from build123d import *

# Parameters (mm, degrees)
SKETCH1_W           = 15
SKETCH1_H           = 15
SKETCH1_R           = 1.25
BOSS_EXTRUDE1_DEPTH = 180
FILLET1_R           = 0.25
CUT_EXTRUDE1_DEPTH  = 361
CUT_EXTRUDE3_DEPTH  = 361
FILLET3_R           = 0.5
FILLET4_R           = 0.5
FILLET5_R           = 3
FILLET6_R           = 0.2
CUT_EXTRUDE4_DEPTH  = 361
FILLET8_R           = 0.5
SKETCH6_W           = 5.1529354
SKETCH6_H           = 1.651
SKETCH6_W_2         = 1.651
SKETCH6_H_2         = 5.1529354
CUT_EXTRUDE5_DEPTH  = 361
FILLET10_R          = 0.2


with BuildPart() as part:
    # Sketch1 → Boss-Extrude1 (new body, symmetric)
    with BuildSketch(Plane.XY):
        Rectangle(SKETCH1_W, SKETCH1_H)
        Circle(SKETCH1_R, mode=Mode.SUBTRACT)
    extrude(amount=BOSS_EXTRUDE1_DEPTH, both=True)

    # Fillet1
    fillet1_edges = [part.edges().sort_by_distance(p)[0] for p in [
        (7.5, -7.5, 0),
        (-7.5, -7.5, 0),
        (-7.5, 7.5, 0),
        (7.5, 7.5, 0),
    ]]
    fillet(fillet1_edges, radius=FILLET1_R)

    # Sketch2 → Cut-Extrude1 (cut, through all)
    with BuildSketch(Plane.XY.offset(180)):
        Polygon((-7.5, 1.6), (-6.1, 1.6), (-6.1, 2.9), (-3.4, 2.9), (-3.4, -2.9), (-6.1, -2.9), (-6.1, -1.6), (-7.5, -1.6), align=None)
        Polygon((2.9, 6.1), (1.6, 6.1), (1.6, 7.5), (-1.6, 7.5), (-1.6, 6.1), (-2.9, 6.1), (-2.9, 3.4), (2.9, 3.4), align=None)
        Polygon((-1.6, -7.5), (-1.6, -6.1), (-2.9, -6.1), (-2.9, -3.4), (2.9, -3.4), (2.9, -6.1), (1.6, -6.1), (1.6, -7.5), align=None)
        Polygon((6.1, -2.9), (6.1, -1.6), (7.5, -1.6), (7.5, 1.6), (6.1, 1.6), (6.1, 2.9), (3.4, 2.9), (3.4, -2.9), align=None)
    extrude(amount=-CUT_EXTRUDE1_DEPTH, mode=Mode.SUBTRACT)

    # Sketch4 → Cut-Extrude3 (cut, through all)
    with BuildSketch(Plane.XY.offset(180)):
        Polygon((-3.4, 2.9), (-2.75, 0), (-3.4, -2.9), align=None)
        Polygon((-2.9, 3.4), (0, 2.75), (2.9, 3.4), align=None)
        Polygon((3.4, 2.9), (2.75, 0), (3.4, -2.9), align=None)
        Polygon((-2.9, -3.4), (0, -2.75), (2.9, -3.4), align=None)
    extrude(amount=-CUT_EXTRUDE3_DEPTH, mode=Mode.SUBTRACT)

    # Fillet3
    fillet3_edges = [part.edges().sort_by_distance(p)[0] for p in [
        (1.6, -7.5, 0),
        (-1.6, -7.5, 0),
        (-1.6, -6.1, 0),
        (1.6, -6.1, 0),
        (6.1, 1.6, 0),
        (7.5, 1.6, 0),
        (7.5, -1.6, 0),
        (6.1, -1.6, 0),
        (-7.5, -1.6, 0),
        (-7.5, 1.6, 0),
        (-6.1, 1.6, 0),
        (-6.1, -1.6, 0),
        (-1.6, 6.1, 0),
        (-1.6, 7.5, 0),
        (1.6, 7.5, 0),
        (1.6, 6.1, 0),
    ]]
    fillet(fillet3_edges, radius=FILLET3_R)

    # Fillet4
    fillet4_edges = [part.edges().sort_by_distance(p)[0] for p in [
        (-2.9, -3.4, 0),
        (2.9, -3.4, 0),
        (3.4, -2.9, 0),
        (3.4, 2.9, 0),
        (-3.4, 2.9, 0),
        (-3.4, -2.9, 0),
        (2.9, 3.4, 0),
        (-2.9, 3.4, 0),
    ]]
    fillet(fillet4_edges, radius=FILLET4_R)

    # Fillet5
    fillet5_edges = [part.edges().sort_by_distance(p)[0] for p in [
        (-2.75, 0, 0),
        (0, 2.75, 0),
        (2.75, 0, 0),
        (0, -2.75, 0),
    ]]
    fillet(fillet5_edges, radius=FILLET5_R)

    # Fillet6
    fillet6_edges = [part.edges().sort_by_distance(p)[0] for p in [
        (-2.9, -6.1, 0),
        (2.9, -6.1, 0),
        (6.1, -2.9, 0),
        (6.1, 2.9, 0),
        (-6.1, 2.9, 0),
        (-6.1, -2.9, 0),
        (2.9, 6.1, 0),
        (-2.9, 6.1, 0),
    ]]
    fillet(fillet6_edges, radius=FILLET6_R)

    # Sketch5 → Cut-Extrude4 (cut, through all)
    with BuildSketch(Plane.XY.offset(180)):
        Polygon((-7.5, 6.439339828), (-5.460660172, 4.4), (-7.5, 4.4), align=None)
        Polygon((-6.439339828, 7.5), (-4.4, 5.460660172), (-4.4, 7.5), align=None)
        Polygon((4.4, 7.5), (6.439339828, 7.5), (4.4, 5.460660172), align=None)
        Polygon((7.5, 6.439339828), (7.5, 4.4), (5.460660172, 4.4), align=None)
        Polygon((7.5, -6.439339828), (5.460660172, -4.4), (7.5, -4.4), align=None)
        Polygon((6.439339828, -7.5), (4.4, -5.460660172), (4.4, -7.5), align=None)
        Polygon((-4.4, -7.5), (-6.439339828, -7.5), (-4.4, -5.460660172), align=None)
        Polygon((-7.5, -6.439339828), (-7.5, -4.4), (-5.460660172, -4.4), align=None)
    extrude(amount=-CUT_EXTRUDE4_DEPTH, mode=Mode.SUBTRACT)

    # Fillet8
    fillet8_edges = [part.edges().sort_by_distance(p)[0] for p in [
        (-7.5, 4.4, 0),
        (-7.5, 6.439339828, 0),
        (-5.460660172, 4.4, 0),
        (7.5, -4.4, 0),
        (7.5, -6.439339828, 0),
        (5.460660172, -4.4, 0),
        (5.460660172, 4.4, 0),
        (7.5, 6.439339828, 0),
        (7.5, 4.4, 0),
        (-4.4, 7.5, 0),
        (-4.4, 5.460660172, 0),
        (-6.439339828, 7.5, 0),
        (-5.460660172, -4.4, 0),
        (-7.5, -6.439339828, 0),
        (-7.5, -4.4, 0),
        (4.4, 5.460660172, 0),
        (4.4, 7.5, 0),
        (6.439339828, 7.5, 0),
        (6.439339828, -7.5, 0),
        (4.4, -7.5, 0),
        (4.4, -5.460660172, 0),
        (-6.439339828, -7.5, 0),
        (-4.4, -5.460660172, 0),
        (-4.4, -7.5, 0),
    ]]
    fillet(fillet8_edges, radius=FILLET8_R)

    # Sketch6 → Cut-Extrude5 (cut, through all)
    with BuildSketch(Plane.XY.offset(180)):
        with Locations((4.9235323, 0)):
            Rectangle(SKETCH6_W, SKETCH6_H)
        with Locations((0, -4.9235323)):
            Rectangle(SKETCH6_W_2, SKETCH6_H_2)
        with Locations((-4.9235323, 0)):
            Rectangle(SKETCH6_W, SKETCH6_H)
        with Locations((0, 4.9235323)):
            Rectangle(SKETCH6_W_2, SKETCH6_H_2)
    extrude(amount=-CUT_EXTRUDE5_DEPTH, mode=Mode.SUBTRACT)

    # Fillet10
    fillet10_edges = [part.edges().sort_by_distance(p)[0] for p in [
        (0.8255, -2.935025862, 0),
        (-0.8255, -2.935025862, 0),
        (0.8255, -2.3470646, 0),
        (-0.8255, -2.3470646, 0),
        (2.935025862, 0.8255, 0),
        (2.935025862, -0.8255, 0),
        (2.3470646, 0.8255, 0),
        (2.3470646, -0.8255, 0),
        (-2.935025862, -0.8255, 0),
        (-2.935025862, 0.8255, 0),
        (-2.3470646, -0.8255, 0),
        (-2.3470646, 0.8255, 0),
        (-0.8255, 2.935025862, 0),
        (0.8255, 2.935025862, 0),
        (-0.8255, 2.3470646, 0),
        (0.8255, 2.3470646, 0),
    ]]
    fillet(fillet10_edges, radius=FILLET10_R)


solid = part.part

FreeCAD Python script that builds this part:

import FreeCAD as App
import Part
import Sketcher

V = App.Vector


def edges_at(feature, points):
    """Names of the edges that pass closest to the given points."""
    edges = feature.Shape.Edges
    near = lambda p: min(range(len(edges)), key=lambda i: edges[i].distToShape(Part.Vertex(*p))[0])
    return sorted({f"Edge{near(p) + 1}" for p in points})


def add_polygon(sketch, points):
    """Adds a closed chain of lines whose ends are joined by coincident constraints."""
    first, n = sketch.GeometryCount, len(points)
    for a, b in zip(points, points[1:] + points[:1]):
        sketch.addGeometry(Part.LineSegment(App.Vector(*a, 0), App.Vector(*b, 0)), False)
    for i in range(n):
        sketch.addConstraint(Sketcher.Constraint("Coincident", first + i, 2, first + (i + 1) % n, 1))

doc = App.newDocument("Part")
body = doc.addObject("PartDesign::Body", "Body")

# Sketch on XY plane
sketch1 = doc.addObject("Sketcher::SketchObject", "Sketch")
body.addObject(sketch1)
sketch1.AttachmentSupport = (doc.XY_Plane, [""])
sketch1.MapMode = "FlatFace"
add_polygon(sketch1, [(-7.5, 7.5), (-7.5, -7.5), (7.5, -7.5), (7.5, 7.5)])  # lines 0-3
sketch1.addGeometry(Part.Circle(V(0, 0, 0), V(0, 0, 1), 1.2), False)  # 4
sketch1.addConstraint(Sketcher.Constraint("Vertical", 0))
sketch1.addConstraint(Sketcher.Constraint("Horizontal", 1))
sketch1.addConstraint(Sketcher.Constraint("Vertical", 2))
sketch1.addConstraint(Sketcher.Constraint("Horizontal", 3))
sketch1.addConstraint(Sketcher.Constraint("Coincident", 4, 3, -1, 1))
sketch1.addConstraint(Sketcher.Constraint("Symmetric", 0, 2, 2, 2, -1, 1))
sketch1.addConstraint(Sketcher.Constraint("Equal", 3, 0))
sketch1.addConstraint(Sketcher.Constraint("Diameter", 4, 2.5))
sketch1.addConstraint(Sketcher.Constraint("DistanceX", 1, 1, 1, 2, 15.0))
pad1 = doc.addObject("PartDesign::Pad", "Pad")
body.addObject(pad1)
pad1.Profile = sketch1
pad1.Length = 360
pad1.Midplane = True
doc.recompute()

fillet = doc.addObject("PartDesign::Fillet", "Fillet")
body.addObject(fillet)
fillet.Base = (pad1, edges_at(pad1, [
    (7.5, -7.5, 0),
    (-7.5, -7.5, 0),
    (-7.5, 7.5, 0),
    (7.5, 7.5, 0),
]))
fillet.Radius = 0.25

# Sketch on XY plane
sketch2 = doc.addObject("Sketcher::SketchObject", "Sketch001")
body.addObject(sketch2)
sketch2.AttachmentSupport = (doc.XY_Plane, [""])
sketch2.MapMode = "FlatFace"
sketch2.AttachmentOffset = App.Placement(V(0, 0, 180), App.Rotation())
add_polygon(sketch2, [(-6.1, 1.6), (-7.5, 1.6), (-7.5, -1.6), (-6.1, -1.6), (-6.1, -2.9), (-3.4, -2.9), (-3.4, 2.9), (-6.1, 2.9)])  # lines 0-7
add_polygon(sketch2, [(2.9, 6.1), (1.6, 6.1), (1.6, 7.5), (-1.6, 7.5), (-1.6, 6.1), (-2.9, 6.1), (-2.9, 3.4), (2.9, 3.4)])  # lines 8-15
add_polygon(sketch2, [(-1.6, -6.1), (-1.6, -7.5), (1.6, -7.5), (1.6, -6.1), (2.9, -6.1), (2.9, -3.4), (-2.9, -3.4), (-2.9, -6.1)])  # lines 16-23
add_polygon(sketch2, [(6.1, -2.9), (6.1, -1.6), (7.5, -1.6), (7.5, 1.6), (6.1, 1.6), (6.1, 2.9), (3.4, 2.9), (3.4, -2.9)])  # lines 24-31
sketch2.addConstraint(Sketcher.Constraint("Horizontal", 0))
sketch2.addConstraint(Sketcher.Constraint("Vertical", 1))
sketch2.addConstraint(Sketcher.Constraint("Horizontal", 2))
sketch2.addConstraint(Sketcher.Constraint("Vertical", 3))
sketch2.addConstraint(Sketcher.Constraint("Horizontal", 4))
sketch2.addConstraint(Sketcher.Constraint("Vertical", 5))
sketch2.addConstraint(Sketcher.Constraint("Horizontal", 6))
sketch2.addConstraint(Sketcher.Constraint("Vertical", 7))
sketch2.addConstraint(Sketcher.Constraint("Horizontal", 8))
sketch2.addConstraint(Sketcher.Constraint("Vertical", 9))
sketch2.addConstraint(Sketcher.Constraint("Horizontal", 10))
sketch2.addConstraint(Sketcher.Constraint("Vertical", 11))
sketch2.addConstraint(Sketcher.Constraint("Horizontal", 12))
sketch2.addConstraint(Sketcher.Constraint("Vertical", 13))
sketch2.addConstraint(Sketcher.Constraint("Horizontal", 14))
sketch2.addConstraint(Sketcher.Constraint("Vertical", 15))
sketch2.addConstraint(Sketcher.Constraint("Vertical", 16))
sketch2.addConstraint(Sketcher.Constraint("Horizontal", 17))
sketch2.addConstraint(Sketcher.Constraint("Vertical", 18))
sketch2.addConstraint(Sketcher.Constraint("Horizontal", 19))
sketch2.addConstraint(Sketcher.Constraint("Vertical", 20))
sketch2.addConstraint(Sketcher.Constraint("Horizontal", 21))
sketch2.addConstraint(Sketcher.Constraint("Vertical", 22))
sketch2.addConstraint(Sketcher.Constraint("Horizontal", 23))
sketch2.addConstraint(Sketcher.Constraint("Vertical", 24))
sketch2.addConstraint(Sketcher.Constraint("Horizontal", 25))
sketch2.addConstraint(Sketcher.Constraint("Vertical", 26))
sketch2.addConstraint(Sketcher.Constraint("Horizontal", 27))
sketch2.addConstraint(Sketcher.Constraint("Vertical", 28))
sketch2.addConstraint(Sketcher.Constraint("Horizontal", 29))
sketch2.addConstraint(Sketcher.Constraint("Vertical", 30))
sketch2.addConstraint(Sketcher.Constraint("Horizontal", 31))
sketch2.addConstraint(Sketcher.Constraint("Symmetric", 9, 2, 16, 2, -1, 1))
sketch2.addConstraint(Sketcher.Constraint("Symmetric", 11, 2, 18, 2, -1, 1))
sketch2.addConstraint(Sketcher.Constraint("Symmetric", 13, 2, 20, 2, -1, 1))
sketch2.addConstraint(Sketcher.Constraint("Symmetric", 15, 2, 22, 2, -1, 1))
sketch2.addConstraint(Sketcher.Constraint("Symmetric", 7, 2, 24, 2, -1, 1))
sketch2.addConstraint(Sketcher.Constraint("Symmetric", 1, 2, 26, 2, -1, 1))
sketch2.addConstraint(Sketcher.Constraint("Symmetric", 3, 2, 28, 2, -1, 1))
sketch2.addConstraint(Sketcher.Constraint("Symmetric", 5, 2, 30, 2, -1, 1))
sketch2.addConstraint(Sketcher.Constraint("Symmetric", 8, 2, 11, 2, -2))
sketch2.addConstraint(Sketcher.Constraint("Symmetric", 2, 2, 24, 2, -2))
sketch2.addConstraint(Sketcher.Constraint("Horizontal", 6, 2, 28, 2))
sketch2.addConstraint(Sketcher.Constraint("Vertical", 15, 2, 19, 2))
sketch2.addConstraint(Sketcher.Constraint("Equal", 17, 1))
sketch2.addConstraint(Sketcher.Constraint("Equal", 23, 3))
sketch2.addConstraint(Sketcher.Constraint("Equal", 27, 9))
sketch2.addConstraint(Sketcher.Constraint("Equal", 31, 13))
sketch2.addConstraint(Sketcher.Constraint("DistanceX", 0, 2, 0, 1, 1.4))
sketch2.addConstraint(Sketcher.Constraint("DistanceX", 4, 1, 4, 2, 2.7))
sketch2.addConstraint(Sketcher.Constraint("DistanceX", 8, 2, 8, 1, 1.3))
sketch2.addConstraint(Sketcher.Constraint("DistanceX", 10, 2, 10, 1, 3.2))
sketch2.addConstraint(Sketcher.Constraint("DistanceX", 5, 2, 8, 2, 5.0))
sketch2.addConstraint(Sketcher.Constraint("DistanceY", 4, 2, 8, 2, 9.0))
pocket1 = doc.addObject("PartDesign::Pocket", "Pocket")
body.addObject(pocket1)
pocket1.Profile = sketch2
pocket1.Type = "ThroughAll"

# Sketch on XY plane
sketch3 = doc.addObject("Sketcher::SketchObject", "Sketch002")
body.addObject(sketch3)
sketch3.AttachmentSupport = (doc.XY_Plane, [""])
sketch3.MapMode = "FlatFace"
sketch3.AttachmentOffset = App.Placement(V(0, 0, 180), App.Rotation())
add_polygon(sketch3, [(-2.8, 0), (-3.4, 2.9), (-3.4, -2.9)])  # lines 0-2
add_polygon(sketch3, [(-2.9, 3.4), (0, 2.8), (2.9, 3.4)])  # lines 3-5
add_polygon(sketch3, [(3.4, 2.9), (2.8, 0), (3.4, -2.9)])  # lines 6-8
add_polygon(sketch3, [(0, -2.8), (-2.9, -3.4), (2.9, -3.4)])  # lines 9-11
sketch3.addConstraint(Sketcher.Constraint("Vertical", 1))
sketch3.addConstraint(Sketcher.Constraint("Horizontal", 5))
sketch3.addConstraint(Sketcher.Constraint("Vertical", 8))
sketch3.addConstraint(Sketcher.Constraint("Horizontal", 10))
sketch3.addConstraint(Sketcher.Constraint("Symmetric", 2, 2, 6, 2, -1, 1))
sketch3.addConstraint(Sketcher.Constraint("Symmetric", 0, 2, 7, 2, -1, 1))
sketch3.addConstraint(Sketcher.Constraint("Symmetric", 4, 2, 9, 2, -1, 1))
sketch3.addConstraint(Sketcher.Constraint("Symmetric", 3, 2, 11, 2, -1, 1))
sketch3.addConstraint(Sketcher.Constraint("PointOnObject", 2, 2, -1))
sketch3.addConstraint(Sketcher.Constraint("PointOnObject", 3, 2, -2))
sketch3.addConstraint(Sketcher.Constraint("Perpendicular", 2, 3))
sketch3.addConstraint(Sketcher.Constraint("Perpendicular", 0, 4))
sketch3.addConstraint(Sketcher.Constraint("Perpendicular", 3, 6))
sketch3.addConstraint(Sketcher.Constraint("Perpendicular", 6, 11))
sketch3.addConstraint(Sketcher.Constraint("Horizontal", 1, 2, 7, 2))
sketch3.addConstraint(Sketcher.Constraint("Equal", 10, 1))
sketch3.addConstraint(Sketcher.Constraint("DistanceX", 5, 2, 5, 1, 5.8))
sketch3.addConstraint(Sketcher.Constraint("DistanceX", 0, 2, -1, 1, 3.4))
sketch3.addConstraint(Sketcher.Constraint("DistanceY", -1, 1, 4, 2, 3.4))
sketch3.addConstraint(Sketcher.Constraint("DistanceX", 2, 2, 6, 2, 5.5))
pocket2 = doc.addObject("PartDesign::Pocket", "Pocket001")
body.addObject(pocket2)
pocket2.Profile = sketch3
pocket2.Type = "ThroughAll"
doc.recompute()

fillet2 = doc.addObject("PartDesign::Fillet", "Fillet001")
body.addObject(fillet2)
fillet2.Base = (pocket2, edges_at(pocket2, [
    (1.6, -7.5, 0),
    (-1.6, -7.5, 0),
    (-1.6, -6.1, 0),
    (1.6, -6.1, 0),
    (6.1, 1.6, 0),
    (7.5, 1.6, 0),
    (7.5, -1.6, 0),
    (6.1, -1.6, 0),
    (-7.5, -1.6, 0),
    (-7.5, 1.6, 0),
    (-6.1, 1.6, 0),
    (-6.1, -1.6, 0),
    (-1.6, 6.1, 0),
    (-1.6, 7.5, 0),
    (1.6, 7.5, 0),
    (1.6, 6.1, 0),
]))
fillet2.Radius = 0.5
doc.recompute()

fillet3 = doc.addObject("PartDesign::Fillet", "Fillet002")
body.addObject(fillet3)
fillet3.Base = (fillet2, edges_at(fillet2, [
    (-2.9, -3.4, 0),
    (2.9, -3.4, 0),
    (3.4, -2.9, 0),
    (3.4, 2.9, 0),
    (-3.4, 2.9, 0),
    (-3.4, -2.9, 0),
    (2.9, 3.4, 0),
    (-2.9, 3.4, 0),
]))
fillet3.Radius = 0.5
doc.recompute()

fillet4 = doc.addObject("PartDesign::Fillet", "Fillet003")
body.addObject(fillet4)
fillet4.Base = (fillet3, edges_at(fillet3, [
    (-2.75, 0, 0),
    (0, 2.75, 0),
    (2.75, 0, 0),
    (0, -2.75, 0),
]))
fillet4.Radius = 3
doc.recompute()

fillet5 = doc.addObject("PartDesign::Fillet", "Fillet004")
body.addObject(fillet5)
fillet5.Base = (fillet4, edges_at(fillet4, [
    (-2.9, -6.1, 0),
    (2.9, -6.1, 0),
    (6.1, -2.9, 0),
    (6.1, 2.9, 0),
    (-6.1, 2.9, 0),
    (-6.1, -2.9, 0),
    (2.9, 6.1, 0),
    (-2.9, 6.1, 0),
]))
fillet5.Radius = 0.2

# Sketch on XY plane
sketch4 = doc.addObject("Sketcher::SketchObject", "Sketch003")
body.addObject(sketch4)
sketch4.AttachmentSupport = (doc.XY_Plane, [""])
sketch4.MapMode = "FlatFace"
sketch4.AttachmentOffset = App.Placement(V(0, 0, 180), App.Rotation())
add_polygon(sketch4, [(-5.5, 4.4), (-7.5, 6.4), (-7.5, 4.4)])  # lines 0-2
add_polygon(sketch4, [(-6.4, 7.5), (-4.4, 5.5), (-4.4, 7.5)])  # lines 3-5
add_polygon(sketch4, [(6.4, 7.5), (4.4, 7.5), (4.4, 5.5)])  # lines 6-8
add_polygon(sketch4, [(7.5, 4.4), (7.5, 6.4), (5.5, 4.4)])  # lines 9-11
add_polygon(sketch4, [(5.5, -4.4), (7.5, -6.4), (7.5, -4.4)])  # lines 12-14
add_polygon(sketch4, [(6.4, -7.5), (4.4, -5.5), (4.4, -7.5)])  # lines 15-17
add_polygon(sketch4, [(-6.4, -7.5), (-4.4, -7.5), (-4.4, -5.5)])  # lines 18-20
add_polygon(sketch4, [(-7.5, -4.4), (-7.5, -6.4), (-5.5, -4.4)])  # lines 21-23
sketch4.addConstraint(Sketcher.Constraint("Vertical", 1))
sketch4.addConstraint(Sketcher.Constraint("Horizontal", 2))
sketch4.addConstraint(Sketcher.Constraint("Vertical", 4))
sketch4.addConstraint(Sketcher.Constraint("Horizontal", 5))
sketch4.addConstraint(Sketcher.Constraint("Horizontal", 6))
sketch4.addConstraint(Sketcher.Constraint("Vertical", 7))
sketch4.addConstraint(Sketcher.Constraint("Vertical", 9))
sketch4.addConstraint(Sketcher.Constraint("Horizontal", 11))
sketch4.addConstraint(Sketcher.Constraint("Vertical", 13))
sketch4.addConstraint(Sketcher.Constraint("Horizontal", 14))
sketch4.addConstraint(Sketcher.Constraint("Vertical", 16))
sketch4.addConstraint(Sketcher.Constraint("Horizontal", 17))
sketch4.addConstraint(Sketcher.Constraint("Horizontal", 18))
sketch4.addConstraint(Sketcher.Constraint("Vertical", 19))
sketch4.addConstraint(Sketcher.Constraint("Vertical", 21))
sketch4.addConstraint(Sketcher.Constraint("Horizontal", 23))
sketch4.addConstraint(Sketcher.Constraint("Symmetric", 0, 2, 12, 2, -1, 1))
sketch4.addConstraint(Sketcher.Constraint("Symmetric", 2, 2, 14, 2, -1, 1))
sketch4.addConstraint(Sketcher.Constraint("Symmetric", 3, 2, 15, 2, -1, 1))
sketch4.addConstraint(Sketcher.Constraint("Symmetric", 5, 2, 17, 2, -1, 1))
sketch4.addConstraint(Sketcher.Constraint("Symmetric", 6, 2, 18, 2, -1, 1))
sketch4.addConstraint(Sketcher.Constraint("Symmetric", 9, 2, 21, 2, -1, 1))
sketch4.addConstraint(Sketcher.Constraint("Symmetric", 10, 2, 22, 2, -1, 1))
sketch4.addConstraint(Sketcher.Constraint("Symmetric", 4, 2, 6, 2, -2))
sketch4.addConstraint(Sketcher.Constraint("Symmetric", 0, 2, 9, 2, -2))
sketch4.addConstraint(Sketcher.Constraint("Symmetric", 2, 2, 10, 2, -2))
sketch4.addConstraint(Sketcher.Constraint("Parallel", 0, 3))
sketch4.addConstraint(Sketcher.Constraint("Perpendicular", 3, 8))
sketch4.addConstraint(Sketcher.Constraint("Parallel", 8, 10))
sketch4.addConstraint(Sketcher.Constraint("Perpendicular", 15, 20))
sketch4.addConstraint(Sketcher.Constraint("Horizontal", 3, 2, 7, 2))
sketch4.addConstraint(Sketcher.Constraint("Horizontal", 15, 2, 19, 2))
sketch4.addConstraint(Sketcher.Constraint("Equal", 2, 5))
sketch4.addConstraint(Sketcher.Constraint("DistanceX", 0, 2, -1, 1, 7.5))
sketch4.addConstraint(Sketcher.Constraint("DistanceY", -1, 1, 1, 2, 4.4))
sketch4.addConstraint(Sketcher.Constraint("DistanceX", 3, 2, -1, 1, 4.4))
sketch4.addConstraint(Sketcher.Constraint("DistanceY", -1, 1, 4, 2, 7.5))
sketch4.addConstraint(Sketcher.Constraint("DistanceX", 2, 1, 2, 2, 2.03934))
pocket3 = doc.addObject("PartDesign::Pocket", "Pocket002")
body.addObject(pocket3)
pocket3.Profile = sketch4
pocket3.Type = "ThroughAll"
doc.recompute()

fillet6 = doc.addObject("PartDesign::Fillet", "Fillet005")
body.addObject(fillet6)
fillet6.Base = (pocket3, edges_at(pocket3, [
    (-7.5, 4.4, 0),
    (-7.5, 6.439, 0),
    (-5.461, 4.4, 0),
    (7.5, -4.4, 0),
    (7.5, -6.439, 0),
    (5.461, -4.4, 0),
    (5.461, 4.4, 0),
    (7.5, 6.439, 0),
    (7.5, 4.4, 0),
    (-4.4, 7.5, 0),
    (-4.4, 5.461, 0),
    (-6.439, 7.5, 0),
    (-5.461, -4.4, 0),
    (-7.5, -6.439, 0),
    (-7.5, -4.4, 0),
    (4.4, 5.461, 0),
    (4.4, 7.5, 0),
    (6.439, 7.5, 0),
    (6.439, -7.5, 0),
    (4.4, -7.5, 0),
    (4.4, -5.461, 0),
    (-6.439, -7.5, 0),
    (-4.4, -5.461, 0),
    (-4.4, -7.5, 0),
]))
fillet6.Radius = 0.5

# Sketch on XY plane
sketch5 = doc.addObject("Sketcher::SketchObject", "Sketch004")
body.addObject(sketch5)
sketch5.AttachmentSupport = (doc.XY_Plane, [""])
sketch5.MapMode = "FlatFace"
sketch5.AttachmentOffset = App.Placement(V(0, 0, 180), App.Rotation())
add_polygon(sketch5, [(2.3, 0.8), (2.3, -0.8), (7.5, -0.8), (7.5, 0.8)])  # lines 0-3
add_polygon(sketch5, [(-0.8, -2.3), (-0.8, -7.5), (0.8, -7.5), (0.8, -2.3)])  # lines 4-7
add_polygon(sketch5, [(-7.5, 0.8), (-7.5, -0.8), (-2.3, -0.8), (-2.3, 0.8)])  # lines 8-11
add_polygon(sketch5, [(-0.8, 7.5), (-0.8, 2.3), (0.8, 2.3), (0.8, 7.5)])  # lines 12-15
sketch5.addConstraint(Sketcher.Constraint("Vertical", 0))
sketch5.addConstraint(Sketcher.Constraint("Horizontal", 1))
sketch5.addConstraint(Sketcher.Constraint("Vertical", 2))
sketch5.addConstraint(Sketcher.Constraint("Horizontal", 3))
sketch5.addConstraint(Sketcher.Constraint("Vertical", 4))
sketch5.addConstraint(Sketcher.Constraint("Horizontal", 5))
sketch5.addConstraint(Sketcher.Constraint("Vertical", 6))
sketch5.addConstraint(Sketcher.Constraint("Horizontal", 7))
sketch5.addConstraint(Sketcher.Constraint("Vertical", 8))
sketch5.addConstraint(Sketcher.Constraint("Horizontal", 9))
sketch5.addConstraint(Sketcher.Constraint("Vertical", 10))
sketch5.addConstraint(Sketcher.Constraint("Horizontal", 11))
sketch5.addConstraint(Sketcher.Constraint("Vertical", 12))
sketch5.addConstraint(Sketcher.Constraint("Horizontal", 13))
sketch5.addConstraint(Sketcher.Constraint("Vertical", 14))
sketch5.addConstraint(Sketcher.Constraint("Horizontal", 15))
sketch5.addConstraint(Sketcher.Constraint("Symmetric", 2, 2, 8, 2, -1, 1))
sketch5.addConstraint(Sketcher.Constraint("Symmetric", 0, 2, 10, 2, -1, 1))
sketch5.addConstraint(Sketcher.Constraint("Symmetric", 6, 2, 12, 2, -1, 1))
sketch5.addConstraint(Sketcher.Constraint("Symmetric", 4, 2, 14, 2, -1, 1))
sketch5.addConstraint(Sketcher.Constraint("Horizontal", 1, 2, 8, 2))
sketch5.addConstraint(Sketcher.Constraint("Vertical", 7, 2, 12, 2))
sketch5.addConstraint(Sketcher.Constraint("Equal", 15, 0))
sketch5.addConstraint(Sketcher.Constraint("Equal", 11, 4))
sketch5.addConstraint(Sketcher.Constraint("DistanceX", -1, 1, 1, 2, 7.5))
sketch5.addConstraint(Sketcher.Constraint("DistanceY", 4, 2, -1, 1, 7.5))
sketch5.addConstraint(Sketcher.Constraint("DistanceX", 5, 1, 5, 2, 1.651))
sketch5.addConstraint(Sketcher.Constraint("DistanceX", 1, 1, 1, 2, 5.152935))
pocket4 = doc.addObject("PartDesign::Pocket", "Pocket003")
body.addObject(pocket4)
pocket4.Profile = sketch5
pocket4.Type = "ThroughAll"
doc.recompute()

fillet7 = doc.addObject("PartDesign::Fillet", "Fillet006")
body.addObject(fillet7)
fillet7.Base = (pocket4, edges_at(pocket4, [
    (0.826, -2.935, 0),
    (-0.826, -2.935, 0),
    (0.826, -2.347, 0),
    (-0.826, -2.347, 0),
    (2.935, 0.826, 0),
    (2.935, -0.826, 0),
    (2.347, 0.826, 0),
    (2.347, -0.826, 0),
    (-2.935, -0.826, 0),
    (-2.935, 0.826, 0),
    (-2.347, -0.826, 0),
    (-2.347, 0.826, 0),
    (-0.826, 2.935, 0),
    (0.826, 2.935, 0),
    (-0.826, 2.347, 0),
    (0.826, 2.347, 0),
]))
fillet7.Radius = 0.2

doc.recompute()
